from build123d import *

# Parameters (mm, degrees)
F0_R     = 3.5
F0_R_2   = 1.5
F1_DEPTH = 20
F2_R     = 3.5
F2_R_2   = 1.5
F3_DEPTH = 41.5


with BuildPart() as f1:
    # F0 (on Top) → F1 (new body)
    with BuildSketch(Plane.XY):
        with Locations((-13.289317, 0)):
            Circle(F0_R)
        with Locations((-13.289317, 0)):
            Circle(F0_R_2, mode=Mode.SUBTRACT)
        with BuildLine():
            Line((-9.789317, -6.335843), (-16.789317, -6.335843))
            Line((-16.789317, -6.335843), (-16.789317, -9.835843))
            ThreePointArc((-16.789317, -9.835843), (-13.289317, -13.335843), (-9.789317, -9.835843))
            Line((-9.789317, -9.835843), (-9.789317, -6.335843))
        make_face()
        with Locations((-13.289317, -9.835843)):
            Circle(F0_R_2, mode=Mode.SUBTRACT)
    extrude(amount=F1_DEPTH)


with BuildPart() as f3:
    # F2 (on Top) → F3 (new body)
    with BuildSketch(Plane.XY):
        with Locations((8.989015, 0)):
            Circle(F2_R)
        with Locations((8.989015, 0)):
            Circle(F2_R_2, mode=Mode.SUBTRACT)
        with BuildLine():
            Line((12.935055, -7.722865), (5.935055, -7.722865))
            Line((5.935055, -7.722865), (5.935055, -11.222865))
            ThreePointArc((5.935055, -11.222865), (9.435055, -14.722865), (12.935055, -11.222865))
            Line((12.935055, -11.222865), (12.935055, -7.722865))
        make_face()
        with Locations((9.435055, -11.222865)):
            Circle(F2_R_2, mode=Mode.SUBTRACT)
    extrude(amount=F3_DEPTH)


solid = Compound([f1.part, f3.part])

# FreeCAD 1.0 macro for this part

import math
import FreeCAD as App
import Part
import Sketcher

V = App.Vector
Q = App.Units.Quantity

doc = App.newDocument("Part")
body = doc.addObject("PartDesign::Body", "Body")
body.AllowCompound = True

# Sketch on XY plane
sketch1 = body.newObject("Sketcher::SketchObject", "Sketch")
sketch1.AttachmentSupport = (doc.getObject("XY_Plane"), [""])
sketch1.MapMode = "FlatFace"
sketch1.addGeometry(Part.Circle(V(-13.3, 0, 0), V(0, 0, 1), 3.5), False)
sketch1.addGeometry(Part.Circle(V(-13.3, 0, 0), V(0, 0, 1), 1.5), False)
sketch1.addGeometry(Part.LineSegment(V(-9.8, -6.3, 0), V(-16.8, -6.3, 0)), False)
sketch1.addGeometry(Part.LineSegment(V(-16.8, -6.3, 0), V(-16.8, -9.8, 0)), False)
sketch1.addGeometry(Part.ArcOfCircle(Part.Circle(V(-13.3, -9.8, 0), V(0, 0, 1), 3.5), math.radians(180), math.radians(360)), False)
sketch1.addGeometry(Part.LineSegment(V(-9.8, -9.8, 0), V(-9.8, -6.3, 0)), False)
sketch1.addGeometry(Part.Circle(V(-13.3, -9.8, 0), V(0, 0, 1), 1.5), False)
sketch1.addConstraint(Sketcher.Constraint("Coincident", 2, 2, 3, 1))
sketch1.addConstraint(Sketcher.Constraint("Tangent", 3, 2, 4, 1))
sketch1.addConstraint(Sketcher.Constraint("Tangent", 4, 2, 5, 1))
sketch1.addConstraint(Sketcher.Constraint("Coincident", 5, 2, 2, 1))
sketch1.addConstraint(Sketcher.Constraint("Horizontal", 2))
sketch1.addConstraint(Sketcher.Constraint("Vertical", 3))
sketch1.addConstraint(Sketcher.Constraint("Vertical", 5))
sketch1.addConstraint(Sketcher.Constraint("Coincident", 1, 3, 0, 3))
sketch1.addConstraint(Sketcher.Constraint("Coincident", 6, 3, 4, 3))
sketch1.addConstraint(Sketcher.Constraint("Equal", 0, 4))
sketch1.addConstraint(Sketcher.Constraint("Equal", 1, 6))
sketch1.addConstraint(Sketcher.Constraint("PointOnObject", 0, 3, -1))
sketch1.addConstraint(Sketcher.Constraint("Vertical", 1, 3, 4, 3))
sketch1.addConstraint(Sketcher.Constraint("Diameter", 0, Q("7 mm")))
sketch1.addConstraint(Sketcher.Constraint("Diameter", 1, Q("3 mm")))
sketch1.addConstraint(Sketcher.Constraint("DistanceY", 3, 2, 3, 1, Q("3.5 mm")))
sketch1.addConstraint(Sketcher.Constraint("DistanceX", 0, 3, -1, 1, Q("13.289317 mm")))
sketch1.addConstraint(Sketcher.Constraint("DistanceY", 4, 3, -1, 1, Q("9.835843 mm")))
pad1 = body.newObject("PartDesign::Pad", "Pad")
pad1.Profile = sketch1
pad1.Length = 20
body2 = doc.addObject("PartDesign::Body", "Body001")
body2.AllowCompound = True

# Sketch on XY plane
sketch2 = body2.newObject("Sketcher::SketchObject", "Sketch001")
sketch2.AttachmentSupport = (doc.getObject("XY_Plane001"), [""])
sketch2.MapMode = "FlatFace"
sketch2.addGeometry(Part.Circle(V(9, 0, 0), V(0, 0, 1), 3.5), False)
sketch2.addGeometry(Part.Circle(V(9, 0, 0), V(0, 0, 1), 1.5), False)
sketch2.addGeometry(Part.LineSegment(V(12.9, -7.7, 0), V(5.9, -7.7, 0)), False)
sketch2.addGeometry(Part.LineSegment(V(5.9, -7.7, 0), V(5.9, -11.2, 0)), False)
sketch2.addGeometry(Part.ArcOfCircle(Part.Circle(V(9.4, -11.2, 0), V(0, 0, 1), 3.5), math.radians(180), math.radians(360)), False)
sketch2.addGeometry(Part.LineSegment(V(12.9, -11.2, 0), V(12.9, -7.7, 0)), False)
sketch2.addGeometry(Part.Circle(V(9.4, -11.2, 0), V(0, 0, 1), 1.5), False)
sketch2.addConstraint(Sketcher.Constraint("Coincident", 2, 2, 3, 1))
sketch2.addConstraint(Sketcher.Constraint("Tangent", 3, 2, 4, 1))
sketch2.addConstraint(Sketcher.Constraint("Tangent", 4, 2, 5, 1))
sketch2.addConstraint(Sketcher.Constraint("Coincident", 5, 2, 2, 1))
sketch2.addConstraint(Sketcher.Constraint("Horizontal", 2))
sketch2.addConstraint(Sketcher.Constraint("Vertical", 3))
sketch2.addConstraint(Sketcher.Constraint("Vertical", 5))
sketch2.addConstraint(Sketcher.Constraint("Coincident", 1, 3, 0, 3))
sketch2.addConstraint(Sketcher.Constraint("Coincident", 6, 3, 4, 3))
sketch2.addConstraint(Sketcher.Constraint("Equal", 0, 4))
sketch2.addConstraint(Sketcher.Constraint("Equal", 1, 6))
sketch2.addConstraint(Sketcher.Constraint("PointOnObject", 0, 3, -1))
sketch2.addConstraint(Sketcher.Constraint("Diameter", 0, Q("7 mm")))
sketch2.addConstraint(Sketcher.Constraint("Diameter", 1, Q("3 mm")))
sketch2.addConstraint(Sketcher.Constraint("DistanceY", 3, 2, 3, 1, Q("3.5 mm")))
sketch2.addConstraint(Sketcher.Constraint("DistanceX", 0, 3, 4, 3, Q("0.44604 mm")))
sketch2.addConstraint(Sketcher.Constraint("DistanceX", -1, 1, 0, 3, Q("8.989015 mm")))
sketch2.addConstraint(Sketcher.Constraint("DistanceY", 4, 3, -1, 1, Q("11.222865 mm")))
pad2 = body2.newObject("PartDesign::Pad", "Pad001")
pad2.Profile = sketch2
pad2.Length = 41.5

doc.recompute()
